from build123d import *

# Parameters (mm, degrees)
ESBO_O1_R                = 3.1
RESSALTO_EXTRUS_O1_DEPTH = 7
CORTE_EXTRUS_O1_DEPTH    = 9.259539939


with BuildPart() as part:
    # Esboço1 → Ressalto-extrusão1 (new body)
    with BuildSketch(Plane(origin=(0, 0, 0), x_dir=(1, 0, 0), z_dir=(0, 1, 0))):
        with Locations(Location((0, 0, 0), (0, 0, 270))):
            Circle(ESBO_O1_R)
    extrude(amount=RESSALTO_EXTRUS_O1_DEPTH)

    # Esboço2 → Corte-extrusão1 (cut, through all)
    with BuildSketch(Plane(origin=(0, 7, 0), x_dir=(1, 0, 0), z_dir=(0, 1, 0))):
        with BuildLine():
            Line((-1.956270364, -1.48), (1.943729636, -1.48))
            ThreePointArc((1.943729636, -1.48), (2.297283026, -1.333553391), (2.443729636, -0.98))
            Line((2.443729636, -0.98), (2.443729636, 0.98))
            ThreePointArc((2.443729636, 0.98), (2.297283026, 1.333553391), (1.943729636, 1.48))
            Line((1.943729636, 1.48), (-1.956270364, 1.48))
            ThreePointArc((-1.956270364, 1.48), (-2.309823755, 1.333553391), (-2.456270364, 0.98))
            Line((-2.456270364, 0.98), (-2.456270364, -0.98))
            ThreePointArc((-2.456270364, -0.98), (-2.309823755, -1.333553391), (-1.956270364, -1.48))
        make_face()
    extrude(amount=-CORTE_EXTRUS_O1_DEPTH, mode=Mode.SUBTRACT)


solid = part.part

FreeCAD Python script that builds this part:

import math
import FreeCAD as App
import Part
import Sketcher
from FreeCAD import Vector

doc = App.newDocument("Part")
body = doc.addObject("PartDesign::Body", "Body")

sketch1 = body.newObject("Sketcher::SketchObject", "Sketch")
sketch1.AttachmentSupport = (doc.getObject("XZ_Plane"), [""])
sketch1.MapMode = "FlatFace"
sketch1.addGeometry(Part.Circle(Vector(0, 0, 0), Vector(0, 0, 1), 3.1), False)
sketch1.addConstraint(Sketcher.Constraint("Coincident", 0, 3, -1, 1))
sketch1.addConstraint(Sketcher.Constraint("Diameter", 0, 6.2))
pad1 = body.newObject("PartDesign::Pad", "Pad")
pad1.Profile = sketch1
pad1.Length = 7
pad1.Reversed = True

sketch2 = body.newObject("Sketcher::SketchObject", "Sketch001")
sketch2.AttachmentSupport = (doc.getObject("XZ_Plane"), [""])
sketch2.MapMode = "FlatFace"
sketch2.AttachmentOffset = App.Placement(Vector(0, 0, -7), App.Rotation())
sketch2.addGeometry(Part.LineSegment(Vector(-1.96, 1.48, 0), Vector(1.94, 1.48, 0)), False)
sketch2.addGeometry(Part.ArcOfCircle(Part.Circle(Vector(1.94, 0.98, 0), Vector(0, 0, 1), 0.5), math.radians(0), math.radians(90)), False)
sketch2.addGeometry(Part.LineSegment(Vector(2.44, 0.98, 0), Vector(2.44, -0.98, 0)), False)
sketch2.addGeometry(Part.ArcOfCircle(Part.Circle(Vector(1.94, -0.98, 0), Vector(0, 0, 1), 0.5), math.radians(-90), math.radians(0)), False)
sketch2.addGeometry(Part.LineSegment(Vector(1.94, -1.48, 0), Vector(-1.96, -1.48, 0)), False)
sketch2.addGeometry(Part.ArcOfCircle(Part.Circle(Vector(-1.96, -0.98, 0), Vector(0, 0, 1), 0.5), math.radians(180), math.radians(270)), False)
sketch2.addGeometry(Part.LineSegment(Vector(-2.46, -0.98, 0), Vector(-2.46, 0.98, 0)), False)
sketch2.addGeometry(Part.ArcOfCircle(Part.Circle(Vector(-1.96, 0.98, 0), Vector(0, 0, 1), 0.5), math.radians(90), math.radians(180)), False)
sketch2.addConstraint(Sketcher.Constraint("Tangent", 0, 2, 1, 2))
sketch2.addConstraint(Sketcher.Constraint("Tangent", 1, 1, 2, 1))
sketch2.addConstraint(Sketcher.Constraint("Tangent", 2, 2, 3, 2))
sketch2.addConstraint(Sketcher.Constraint("Tangent", 3, 1, 4, 1))
sketch2.addConstraint(Sketcher.Constraint("Tangent", 4, 2, 5, 2))
sketch2.addConstraint(Sketcher.Constraint("Tangent", 5, 1, 6, 1))
sketch2.addConstraint(Sketcher.Constraint("Tangent", 6, 2, 7, 2))
sketch2.addConstraint(Sketcher.Constraint("Tangent", 7, 1, 0, 1))
sketch2.addConstraint(Sketcher.Constraint("Horizontal", 0))
sketch2.addConstraint(Sketcher.Constraint("Vertical", 2))
sketch2.addConstraint(Sketcher.Constraint("Horizontal", 4))
sketch2.addConstraint(Sketcher.Constraint("Vertical", 6))
sketch2.addConstraint(Sketcher.Constraint("Equal", 1, 3))
sketch2.addConstraint(Sketcher.Constraint("Equal", 3, 5))
sketch2.addConstraint(Sketcher.Constraint("Equal", 5, 7))
sketch2.addConstraint(Sketcher.Constraint("Radius", 1, 0.5))
sketch2.addConstraint(Sketcher.Constraint("DistanceX", 0, 1, 0, 2, 3.9))
sketch2.addConstraint(Sketcher.Constraint("DistanceY", 2, 2, 2, 1, 1.96))
sketch2.addConstraint(Sketcher.Constraint("DistanceY", -1, 1, 1, 3, 0.98))
sketch2.addConstraint(Sketcher.Constraint("DistanceX", -1, 1, 1, 3, 1.94373))
pocket1 = body.newObject("PartDesign::Pocket", "Pocket")
pocket1.Profile = sketch2
pocket1.Type = "ThroughAll"
pocket1.Reversed = True

doc.recompute()
